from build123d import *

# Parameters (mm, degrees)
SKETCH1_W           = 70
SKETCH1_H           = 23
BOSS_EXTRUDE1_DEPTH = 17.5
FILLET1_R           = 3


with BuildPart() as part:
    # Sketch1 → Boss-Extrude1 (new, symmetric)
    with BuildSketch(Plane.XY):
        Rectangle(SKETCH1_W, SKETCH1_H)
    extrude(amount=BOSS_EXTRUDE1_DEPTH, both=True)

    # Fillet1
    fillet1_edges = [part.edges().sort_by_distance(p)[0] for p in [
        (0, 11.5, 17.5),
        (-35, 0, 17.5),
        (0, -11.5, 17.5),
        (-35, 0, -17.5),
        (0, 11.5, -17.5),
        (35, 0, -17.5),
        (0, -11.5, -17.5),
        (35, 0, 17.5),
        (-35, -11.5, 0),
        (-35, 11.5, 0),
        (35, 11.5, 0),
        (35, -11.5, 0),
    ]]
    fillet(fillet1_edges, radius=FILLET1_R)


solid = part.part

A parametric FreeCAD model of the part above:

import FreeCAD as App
import Part
import Sketcher

doc = App.newDocument("Part")
body = doc.addObject("PartDesign::Body", "Body")

sketch1 = body.newObject("Sketcher::SketchObject", "Sketch")
sketch1.AttachmentSupport = (doc.getObject("XY_Plane"), [""])
sketch1.MapMode = "FlatFace"
sketch1.addGeometry([
    Part.LineSegment(App.Vector(-35, 12, 0), App.Vector(-35, -12, 0)),
    Part.LineSegment(App.Vector(-35, -12, 0), App.Vector(35, -12, 0)),
    Part.LineSegment(App.Vector(35, -12, 0), App.Vector(35, 12, 0)),
    Part.LineSegment(App.Vector(35, 12, 0), App.Vector(-35, 12, 0)),
], False)
sketch1.addConstraint([
    Sketcher.Constraint("Coincident", 0, 2, 1, 1),
    Sketcher.Constraint("Coincident", 1, 2, 2, 1),
    Sketcher.Constraint("Coincident", 2, 2, 3, 1),
    Sketcher.Constraint("Coincident", 3, 2, 0, 1),
    Sketcher.Constraint("Vertical", 0),
    Sketcher.Constraint("Horizontal", 1),
    Sketcher.Constraint("Vertical", 2),
    Sketcher.Constraint("Horizontal", 3),
    Sketcher.Constraint("Symmetric", 0, 2, 2, 2, -1, 1),
    Sketcher.Constraint("DistanceX", 1, 1, 1, 2, 70.0),
    Sketcher.Constraint("DistanceY", 0, 2, 0, 1, 23.0),
])
pad1 = body.newObject("PartDesign::Pad", "Pad")
pad1.Profile = sketch1
pad1.Length = 35
pad1.Midplane = True
doc.recompute()

fillet = body.newObject("PartDesign::Fillet", "Fillet")
fillet.Base = (pad1, ["Edge1"])
fillet.UseAllEdges = True
fillet.Radius = 3

doc.recompute()
